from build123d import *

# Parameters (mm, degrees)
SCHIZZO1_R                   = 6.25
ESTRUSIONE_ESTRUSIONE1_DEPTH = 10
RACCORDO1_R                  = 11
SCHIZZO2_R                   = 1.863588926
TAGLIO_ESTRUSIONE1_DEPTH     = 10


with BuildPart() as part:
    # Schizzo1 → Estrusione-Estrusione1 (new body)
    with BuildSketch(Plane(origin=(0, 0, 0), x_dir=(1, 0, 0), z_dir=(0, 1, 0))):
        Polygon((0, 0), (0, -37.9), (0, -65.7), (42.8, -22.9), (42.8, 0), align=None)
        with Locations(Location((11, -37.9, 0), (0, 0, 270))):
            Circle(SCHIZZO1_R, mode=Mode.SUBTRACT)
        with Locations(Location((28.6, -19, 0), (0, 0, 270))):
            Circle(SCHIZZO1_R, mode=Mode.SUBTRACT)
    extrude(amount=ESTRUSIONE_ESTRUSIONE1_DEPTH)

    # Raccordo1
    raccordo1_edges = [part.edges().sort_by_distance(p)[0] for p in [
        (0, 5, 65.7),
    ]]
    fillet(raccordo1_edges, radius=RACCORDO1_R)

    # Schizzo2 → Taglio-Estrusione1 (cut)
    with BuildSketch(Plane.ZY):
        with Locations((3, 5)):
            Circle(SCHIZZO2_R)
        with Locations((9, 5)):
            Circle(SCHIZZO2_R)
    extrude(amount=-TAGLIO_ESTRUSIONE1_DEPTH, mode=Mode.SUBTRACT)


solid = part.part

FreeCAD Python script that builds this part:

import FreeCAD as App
import Part
import Sketcher
from FreeCAD import Vector
Q = App.Units.Quantity


def edges_at(feature, points):
    """Names of the edges that pass closest to the given points."""
    edges = feature.Shape.Edges
    near = lambda p: min(range(len(edges)), key=lambda i: edges[i].distToShape(Part.Vertex(*p))[0])
    return sorted({f"Edge{near(p) + 1}" for p in points})

doc = App.newDocument("Part")
body = doc.addObject("PartDesign::Body", "Body")

# Sketch on XZ plane
sketch1 = doc.addObject("Sketcher::SketchObject", "Sketch")
body.addObject(sketch1)
sketch1.AttachmentSupport = (doc.XZ_Plane, [""])
sketch1.MapMode = "FlatFace"
sketch1.addGeometry([
    Part.LineSegment(Vector(0, 0, 0), Vector(0, 65.7, 0)),  # 0
    Part.LineSegment(Vector(0, 65.7, 0), Vector(42.8, 22.9, 0)),  # 1
    Part.LineSegment(Vector(42.8, 22.9, 0), Vector(42.8, 0, 0)),  # 2
    Part.LineSegment(Vector(42.8, 0, 0), Vector(0, 0, 0)),  # 3
    Part.Circle(Vector(11, 37.9, 0), Vector(0, 0, 1), 6.25),  # 4
    Part.Circle(Vector(28.6, 19, 0), Vector(0, 0, 1), 6.25),  # 5
], False)
sketch1.addConstraint([
    Sketcher.Constraint("Coincident", 0, 2, 1, 1),
    Sketcher.Constraint("Coincident", 1, 2, 2, 1),
    Sketcher.Constraint("Coincident", 2, 2, 3, 1),
    Sketcher.Constraint("Coincident", 3, 2, 0, 1),
    Sketcher.Constraint("Vertical", 0),
    Sketcher.Constraint("Vertical", 2),
    Sketcher.Constraint("Horizontal", 3),
    Sketcher.Constraint("Coincident", 3, 2, -1, 1),
    Sketcher.Constraint("Equal", 4, 5),
    Sketcher.Constraint("Diameter", 4, Q("12.5 mm")),
    Sketcher.Constraint("Angle", 1, Q("-45 deg")),
    Sketcher.Constraint("DistanceX", 3, 2, 3, 1, Q("42.8 mm")),
    Sketcher.Constraint("DistanceY", 0, 1, 0, 2, Q("65.7 mm")),
    Sketcher.Constraint("DistanceX", -1, 1, 4, 3, Q("11 mm")),
    Sketcher.Constraint("DistanceY", -1, 1, 5, 3, Q("19 mm")),
    Sketcher.Constraint("DistanceY", 1, 2, 4, 3, Q("15 mm")),
    Sketcher.Constraint("DistanceX", -1, 1, 5, 3, Q("28.6 mm")),
])
pad1 = doc.addObject("PartDesign::Pad", "Pad")
body.addObject(pad1)
pad1.Profile = sketch1
pad1.Length = 10
pad1.Reversed = True
doc.recompute()

fillet = doc.addObject("PartDesign::Fillet", "Fillet")
body.addObject(fillet)
fillet.Base = (pad1, edges_at(pad1, [(0, 5, 65.7)]))
fillet.Radius = 11

# Sketch on YZ plane
sketch2 = doc.addObject("Sketcher::SketchObject", "Sketch001")
body.addObject(sketch2)
sketch2.AttachmentSupport = (doc.YZ_Plane, [""])
sketch2.MapMode = "FlatFace"
sketch2.addGeometry([
    Part.Circle(Vector(5, 3, 0), Vector(0, 0, 1), 1.863589),
    Part.Circle(Vector(5, 9, 0), Vector(0, 0, 1), 1.863589),
], False)
sketch2.addConstraint([
    Sketcher.Constraint("Equal", 0, 1),
    Sketcher.Constraint("Vertical", 0, 3, 1, 3),
    Sketcher.Constraint("DistanceX", -1, 1, 0, 3, Q("5 mm")),
    Sketcher.Constraint("DistanceY", -1, 1, 0, 3, Q("3 mm")),
    Sketcher.Constraint("DistanceY", -1, 1, 1, 3, Q("9 mm")),
    Sketcher.Constraint("Diameter", 0, Q("3.727178 mm")),
])
pocket1 = doc.addObject("PartDesign::Pocket", "Pocket")
body.addObject(pocket1)
pocket1.Profile = sketch2
pocket1.Length = 10
pocket1.Reversed = True

doc.recompute()
